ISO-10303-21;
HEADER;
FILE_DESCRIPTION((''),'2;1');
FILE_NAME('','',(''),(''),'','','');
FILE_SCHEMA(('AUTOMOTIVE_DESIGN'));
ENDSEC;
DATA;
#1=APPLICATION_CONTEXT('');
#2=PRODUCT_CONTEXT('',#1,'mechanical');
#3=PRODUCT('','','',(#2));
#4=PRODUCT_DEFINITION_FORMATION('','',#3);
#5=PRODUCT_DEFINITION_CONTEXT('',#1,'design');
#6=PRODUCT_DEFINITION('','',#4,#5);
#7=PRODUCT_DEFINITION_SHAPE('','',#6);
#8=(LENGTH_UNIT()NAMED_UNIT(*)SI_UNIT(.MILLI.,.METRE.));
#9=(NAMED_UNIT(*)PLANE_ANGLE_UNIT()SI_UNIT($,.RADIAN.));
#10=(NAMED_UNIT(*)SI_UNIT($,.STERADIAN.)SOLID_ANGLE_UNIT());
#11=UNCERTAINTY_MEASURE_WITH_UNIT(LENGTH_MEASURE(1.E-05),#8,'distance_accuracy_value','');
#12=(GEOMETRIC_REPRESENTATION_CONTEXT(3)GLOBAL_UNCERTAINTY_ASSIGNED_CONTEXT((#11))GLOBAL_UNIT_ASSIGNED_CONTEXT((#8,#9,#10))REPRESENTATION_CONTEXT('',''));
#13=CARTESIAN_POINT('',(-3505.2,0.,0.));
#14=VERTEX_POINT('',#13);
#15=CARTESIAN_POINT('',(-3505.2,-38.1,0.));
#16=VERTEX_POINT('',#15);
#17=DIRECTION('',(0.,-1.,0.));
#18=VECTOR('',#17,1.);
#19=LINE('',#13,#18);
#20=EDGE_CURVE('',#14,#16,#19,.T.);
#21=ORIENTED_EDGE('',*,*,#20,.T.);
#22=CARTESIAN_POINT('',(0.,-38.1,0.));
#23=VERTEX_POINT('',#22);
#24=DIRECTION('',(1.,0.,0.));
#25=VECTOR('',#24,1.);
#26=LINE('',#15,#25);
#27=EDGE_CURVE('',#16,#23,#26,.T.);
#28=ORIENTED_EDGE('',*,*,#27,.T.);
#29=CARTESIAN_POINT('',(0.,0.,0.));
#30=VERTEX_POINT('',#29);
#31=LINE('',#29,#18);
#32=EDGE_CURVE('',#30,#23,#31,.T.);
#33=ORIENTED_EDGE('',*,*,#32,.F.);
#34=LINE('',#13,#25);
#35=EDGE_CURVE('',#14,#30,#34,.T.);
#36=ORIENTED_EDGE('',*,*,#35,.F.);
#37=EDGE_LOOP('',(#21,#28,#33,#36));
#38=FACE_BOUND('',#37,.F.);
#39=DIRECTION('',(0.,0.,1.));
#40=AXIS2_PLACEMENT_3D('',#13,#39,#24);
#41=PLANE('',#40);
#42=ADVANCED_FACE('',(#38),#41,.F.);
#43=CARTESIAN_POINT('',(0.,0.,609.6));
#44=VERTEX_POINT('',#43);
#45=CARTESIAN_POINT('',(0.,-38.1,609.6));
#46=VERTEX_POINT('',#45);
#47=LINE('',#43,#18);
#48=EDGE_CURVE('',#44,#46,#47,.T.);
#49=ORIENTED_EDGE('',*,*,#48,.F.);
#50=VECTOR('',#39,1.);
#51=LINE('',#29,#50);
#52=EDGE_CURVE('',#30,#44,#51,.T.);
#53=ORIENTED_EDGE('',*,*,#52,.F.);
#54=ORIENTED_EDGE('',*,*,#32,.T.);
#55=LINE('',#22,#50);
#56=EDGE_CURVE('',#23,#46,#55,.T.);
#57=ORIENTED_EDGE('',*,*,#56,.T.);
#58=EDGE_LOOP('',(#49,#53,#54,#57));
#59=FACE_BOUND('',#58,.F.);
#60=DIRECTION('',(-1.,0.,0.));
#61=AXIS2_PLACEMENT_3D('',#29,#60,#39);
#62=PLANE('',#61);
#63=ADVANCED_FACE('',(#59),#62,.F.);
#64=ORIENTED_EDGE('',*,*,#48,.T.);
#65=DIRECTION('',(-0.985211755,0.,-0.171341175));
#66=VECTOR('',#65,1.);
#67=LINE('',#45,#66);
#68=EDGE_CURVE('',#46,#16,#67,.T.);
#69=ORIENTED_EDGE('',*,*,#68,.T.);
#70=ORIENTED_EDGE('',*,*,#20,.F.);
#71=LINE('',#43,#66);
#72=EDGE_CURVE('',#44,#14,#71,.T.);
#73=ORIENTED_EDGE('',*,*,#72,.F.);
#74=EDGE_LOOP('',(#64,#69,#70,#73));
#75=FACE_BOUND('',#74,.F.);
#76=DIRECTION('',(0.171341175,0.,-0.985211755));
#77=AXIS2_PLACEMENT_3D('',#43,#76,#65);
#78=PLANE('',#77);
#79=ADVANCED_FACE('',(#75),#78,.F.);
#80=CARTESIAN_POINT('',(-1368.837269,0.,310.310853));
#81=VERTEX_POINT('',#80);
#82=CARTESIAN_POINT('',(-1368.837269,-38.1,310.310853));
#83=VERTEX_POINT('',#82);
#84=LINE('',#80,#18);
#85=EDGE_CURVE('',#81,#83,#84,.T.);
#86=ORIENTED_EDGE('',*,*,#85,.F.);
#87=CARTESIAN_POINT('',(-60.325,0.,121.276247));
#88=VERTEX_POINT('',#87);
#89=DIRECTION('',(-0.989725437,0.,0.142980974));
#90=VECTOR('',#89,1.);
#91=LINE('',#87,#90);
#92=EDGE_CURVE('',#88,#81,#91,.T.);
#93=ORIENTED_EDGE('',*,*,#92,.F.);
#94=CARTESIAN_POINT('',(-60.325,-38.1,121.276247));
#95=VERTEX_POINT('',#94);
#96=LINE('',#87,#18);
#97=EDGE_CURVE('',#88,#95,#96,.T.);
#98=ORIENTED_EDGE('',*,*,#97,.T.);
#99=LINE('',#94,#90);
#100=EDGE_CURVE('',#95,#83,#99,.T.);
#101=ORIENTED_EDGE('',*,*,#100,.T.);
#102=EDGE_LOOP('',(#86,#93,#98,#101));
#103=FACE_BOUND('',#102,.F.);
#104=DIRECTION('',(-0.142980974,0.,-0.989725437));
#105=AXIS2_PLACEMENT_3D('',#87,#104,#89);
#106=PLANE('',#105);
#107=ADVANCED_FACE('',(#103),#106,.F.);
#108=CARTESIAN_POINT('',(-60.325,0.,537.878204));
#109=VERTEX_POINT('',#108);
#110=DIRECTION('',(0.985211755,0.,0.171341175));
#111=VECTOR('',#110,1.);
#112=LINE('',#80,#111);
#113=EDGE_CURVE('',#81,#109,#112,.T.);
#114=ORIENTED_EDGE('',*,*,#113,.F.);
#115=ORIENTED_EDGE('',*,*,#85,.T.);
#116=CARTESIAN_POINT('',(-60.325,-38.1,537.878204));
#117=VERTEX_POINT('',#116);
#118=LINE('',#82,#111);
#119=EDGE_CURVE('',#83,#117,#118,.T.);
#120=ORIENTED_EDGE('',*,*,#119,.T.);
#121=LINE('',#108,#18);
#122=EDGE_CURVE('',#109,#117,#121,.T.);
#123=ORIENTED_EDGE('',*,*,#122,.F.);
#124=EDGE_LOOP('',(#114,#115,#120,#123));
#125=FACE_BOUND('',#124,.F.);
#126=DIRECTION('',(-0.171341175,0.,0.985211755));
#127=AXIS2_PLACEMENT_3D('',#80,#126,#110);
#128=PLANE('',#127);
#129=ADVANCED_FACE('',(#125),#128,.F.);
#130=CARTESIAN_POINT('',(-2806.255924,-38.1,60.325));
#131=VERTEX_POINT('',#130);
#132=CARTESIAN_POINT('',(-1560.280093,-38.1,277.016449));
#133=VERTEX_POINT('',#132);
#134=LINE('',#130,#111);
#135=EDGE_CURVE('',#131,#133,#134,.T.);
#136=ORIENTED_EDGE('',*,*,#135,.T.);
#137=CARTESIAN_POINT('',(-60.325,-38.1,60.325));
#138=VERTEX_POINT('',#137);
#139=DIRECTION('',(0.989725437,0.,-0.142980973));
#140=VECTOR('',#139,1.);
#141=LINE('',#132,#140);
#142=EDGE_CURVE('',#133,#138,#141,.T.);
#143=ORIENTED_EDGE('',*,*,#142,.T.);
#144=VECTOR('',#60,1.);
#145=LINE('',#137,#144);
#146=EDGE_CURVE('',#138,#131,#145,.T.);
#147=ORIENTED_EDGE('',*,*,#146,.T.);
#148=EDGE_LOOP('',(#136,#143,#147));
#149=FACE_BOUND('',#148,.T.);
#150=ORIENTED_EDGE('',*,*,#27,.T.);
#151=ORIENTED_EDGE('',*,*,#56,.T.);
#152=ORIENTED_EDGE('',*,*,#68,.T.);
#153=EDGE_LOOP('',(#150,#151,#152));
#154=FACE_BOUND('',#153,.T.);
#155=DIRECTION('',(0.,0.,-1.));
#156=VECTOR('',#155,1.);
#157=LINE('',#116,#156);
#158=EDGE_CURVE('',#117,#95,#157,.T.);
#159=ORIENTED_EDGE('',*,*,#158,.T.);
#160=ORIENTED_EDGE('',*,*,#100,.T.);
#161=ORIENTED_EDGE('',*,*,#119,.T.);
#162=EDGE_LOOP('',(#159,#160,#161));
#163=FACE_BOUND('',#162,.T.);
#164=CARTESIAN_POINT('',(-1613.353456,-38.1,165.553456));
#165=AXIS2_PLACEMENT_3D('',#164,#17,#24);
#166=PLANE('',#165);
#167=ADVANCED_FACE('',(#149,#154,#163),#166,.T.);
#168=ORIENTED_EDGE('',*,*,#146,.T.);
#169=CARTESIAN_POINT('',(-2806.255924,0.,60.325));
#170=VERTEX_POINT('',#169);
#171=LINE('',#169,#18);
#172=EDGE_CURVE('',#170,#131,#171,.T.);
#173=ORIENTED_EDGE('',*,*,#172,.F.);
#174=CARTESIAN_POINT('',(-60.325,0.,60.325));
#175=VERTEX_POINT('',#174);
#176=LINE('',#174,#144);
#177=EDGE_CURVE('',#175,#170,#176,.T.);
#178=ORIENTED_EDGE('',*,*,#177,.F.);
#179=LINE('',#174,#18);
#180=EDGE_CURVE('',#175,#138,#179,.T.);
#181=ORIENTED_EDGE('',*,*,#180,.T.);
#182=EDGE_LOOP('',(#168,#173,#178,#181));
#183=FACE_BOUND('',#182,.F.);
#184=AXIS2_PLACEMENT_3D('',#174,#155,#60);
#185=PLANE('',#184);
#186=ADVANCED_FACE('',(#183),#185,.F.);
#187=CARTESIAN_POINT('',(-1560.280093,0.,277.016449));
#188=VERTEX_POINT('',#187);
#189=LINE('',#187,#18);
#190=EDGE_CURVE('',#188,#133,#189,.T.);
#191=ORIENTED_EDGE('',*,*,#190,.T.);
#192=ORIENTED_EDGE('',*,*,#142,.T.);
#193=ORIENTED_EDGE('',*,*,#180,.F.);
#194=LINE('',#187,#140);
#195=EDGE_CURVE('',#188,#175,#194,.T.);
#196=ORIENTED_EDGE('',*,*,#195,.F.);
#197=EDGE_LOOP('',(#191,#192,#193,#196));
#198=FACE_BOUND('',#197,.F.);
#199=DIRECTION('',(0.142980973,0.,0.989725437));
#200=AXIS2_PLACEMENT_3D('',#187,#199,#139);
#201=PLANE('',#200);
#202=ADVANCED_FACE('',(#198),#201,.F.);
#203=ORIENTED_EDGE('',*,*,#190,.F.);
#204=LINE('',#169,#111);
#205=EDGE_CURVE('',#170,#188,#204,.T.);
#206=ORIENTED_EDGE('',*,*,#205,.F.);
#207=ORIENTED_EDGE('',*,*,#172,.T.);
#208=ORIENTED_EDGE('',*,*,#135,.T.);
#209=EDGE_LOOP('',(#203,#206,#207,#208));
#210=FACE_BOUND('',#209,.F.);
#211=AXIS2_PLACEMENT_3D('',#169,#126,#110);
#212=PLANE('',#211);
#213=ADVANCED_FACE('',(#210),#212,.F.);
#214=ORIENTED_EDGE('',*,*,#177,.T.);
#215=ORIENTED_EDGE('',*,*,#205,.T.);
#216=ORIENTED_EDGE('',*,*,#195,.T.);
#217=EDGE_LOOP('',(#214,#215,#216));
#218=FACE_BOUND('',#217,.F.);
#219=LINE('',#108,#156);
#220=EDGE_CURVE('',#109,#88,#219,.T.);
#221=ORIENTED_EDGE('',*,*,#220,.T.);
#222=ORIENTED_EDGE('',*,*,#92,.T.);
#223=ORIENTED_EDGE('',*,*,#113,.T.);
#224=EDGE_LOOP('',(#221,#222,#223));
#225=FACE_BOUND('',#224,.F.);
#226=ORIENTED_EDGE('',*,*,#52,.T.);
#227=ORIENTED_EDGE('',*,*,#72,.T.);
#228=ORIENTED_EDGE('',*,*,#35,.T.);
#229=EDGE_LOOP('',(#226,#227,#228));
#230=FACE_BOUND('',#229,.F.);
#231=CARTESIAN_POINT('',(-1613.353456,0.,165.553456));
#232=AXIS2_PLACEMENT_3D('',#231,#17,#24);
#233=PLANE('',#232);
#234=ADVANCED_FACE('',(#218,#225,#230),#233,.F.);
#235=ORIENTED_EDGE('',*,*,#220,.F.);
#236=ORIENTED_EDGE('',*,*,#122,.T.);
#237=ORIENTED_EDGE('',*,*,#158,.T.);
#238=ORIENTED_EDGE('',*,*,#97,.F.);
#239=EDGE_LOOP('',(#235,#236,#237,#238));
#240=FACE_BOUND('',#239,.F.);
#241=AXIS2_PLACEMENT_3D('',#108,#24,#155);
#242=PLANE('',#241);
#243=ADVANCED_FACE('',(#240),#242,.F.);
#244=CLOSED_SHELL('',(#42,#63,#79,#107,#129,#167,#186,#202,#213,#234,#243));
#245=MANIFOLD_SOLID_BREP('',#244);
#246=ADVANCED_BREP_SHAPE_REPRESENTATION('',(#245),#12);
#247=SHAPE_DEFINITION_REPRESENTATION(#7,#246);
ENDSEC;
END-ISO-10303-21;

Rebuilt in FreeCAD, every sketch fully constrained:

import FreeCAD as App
import Part
import Sketcher
Q = App.Units.Quantity


def add_polygon(sketch, points):
    """Adds a closed chain of lines whose ends are joined by coincident constraints."""
    first, n = sketch.GeometryCount, len(points)
    for a, b in zip(points, points[1:] + points[:1]):
        sketch.addGeometry(Part.LineSegment(App.Vector(*a, 0), App.Vector(*b, 0)), False)
    for i in range(n):
        sketch.addConstraint(Sketcher.Constraint("Coincident", first + i, 2, first + (i + 1) % n, 1))

doc = App.newDocument("Part")
params = doc.addObject("Spreadsheet::Sheet", "Params")
for row, (alias, value) in enumerate([
    ("sketch1_width", "138 in"),
    ("sketch1_height", "24 in"),
    ("pad1_length", "1.5 in"),
], start=1):
    params.set(f"A{row}", alias)
    params.set(f"B{row}", "=" + value)
    params.setAlias(f"B{row}", alias)

body = doc.addObject("PartDesign::Body", "Body")

sketch1 = body.newObject("Sketcher::SketchObject", "Sketch")
sketch1.AttachmentSupport = (doc.getObject("XZ_Plane"), [""])
sketch1.MapMode = "FlatFace"
add_polygon(sketch1, [(-3505, 0), (0, 0), (0, 610)])
add_polygon(sketch1, [(-60, 60), (-2806, 60), (-1560, 277)])
add_polygon(sketch1, [(-60, 538), (-60, 121), (-1369, 310)])
sketch1.addConstraint([
    Sketcher.Constraint("Horizontal", 0),
    Sketcher.Constraint("Vertical", 1),
    Sketcher.Constraint("Horizontal", 3),
    Sketcher.Constraint("Vertical", 6),
    Sketcher.Constraint("Coincident", 0, 2, -1, 1),
    Sketcher.Constraint("Parallel", 2, 4),
    Sketcher.Constraint("Parallel", 5, 7),
    Sketcher.Constraint("Parallel", 4, 8),
    Sketcher.Constraint("Vertical", 5, 2, 6, 2),
    Sketcher.Constraint("DistanceX", 0, 1, 0, 2, Q("138 in")),
    Sketcher.Constraint("DistanceY", 1, 1, 1, 2, Q("24 in")),
    Sketcher.Constraint("DistanceY", -1, 1, 3, 2, Q("2.375 in")),
    Sketcher.Constraint("DistanceX", 5, 2, -1, 1, Q("2.375 in")),
    Sketcher.Constraint("Distance", 7, 1322.09623),
    Sketcher.Constraint("DistanceX", 3, 2, 3, 1, 2745.930924),
    Sketcher.Constraint("DistanceY", 6, 2, 6, 1, 416.601957),
    Sketcher.Constraint("DistanceY", -1, 1, 6, 2, 121.276247),
])
sketch1.setExpression("Constraints[18]", "Params.sketch1_width")
sketch1.setExpression("Constraints[19]", "Params.sketch1_height")
pad1 = body.newObject("PartDesign::Pad", "Pad")
pad1.Profile = sketch1
pad1.setExpression("Length", "Params.pad1_length")

doc.recompute()
